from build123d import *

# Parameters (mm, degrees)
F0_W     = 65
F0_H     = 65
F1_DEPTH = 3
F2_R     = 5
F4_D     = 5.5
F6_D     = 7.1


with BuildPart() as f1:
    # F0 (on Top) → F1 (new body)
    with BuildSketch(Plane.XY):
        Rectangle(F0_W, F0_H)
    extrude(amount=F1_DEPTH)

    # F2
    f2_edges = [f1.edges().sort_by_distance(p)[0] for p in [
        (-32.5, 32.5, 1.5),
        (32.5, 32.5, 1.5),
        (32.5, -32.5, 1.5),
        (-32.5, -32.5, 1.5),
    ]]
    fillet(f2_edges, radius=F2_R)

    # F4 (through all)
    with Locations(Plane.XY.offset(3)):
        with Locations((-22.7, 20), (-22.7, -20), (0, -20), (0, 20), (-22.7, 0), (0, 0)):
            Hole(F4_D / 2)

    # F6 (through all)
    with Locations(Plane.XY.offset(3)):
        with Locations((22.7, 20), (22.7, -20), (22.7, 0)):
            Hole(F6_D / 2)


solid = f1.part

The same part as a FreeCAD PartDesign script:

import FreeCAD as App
import Part
import Sketcher


def edges_at(feature, points):
    """Names of the edges that pass closest to the given points."""
    edges = feature.Shape.Edges
    near = lambda p: min(range(len(edges)), key=lambda i: edges[i].distToShape(Part.Vertex(*p))[0])
    return sorted({f"Edge{near(p) + 1}" for p in points})


def add_polygon(sketch, points):
    """Adds a closed chain of lines whose ends are joined by coincident constraints."""
    first, n = sketch.GeometryCount, len(points)
    for a, b in zip(points, points[1:] + points[:1]):
        sketch.addGeometry(Part.LineSegment(App.Vector(*a, 0), App.Vector(*b, 0)), False)
    for i in range(n):
        sketch.addConstraint(Sketcher.Constraint("Coincident", first + i, 2, first + (i + 1) % n, 1))

doc = App.newDocument("Part")
body = doc.addObject("PartDesign::Body", "Body")

# Sketch on XY plane
sketch1 = body.newObject("Sketcher::SketchObject", "Sketch")
sketch1.AttachmentSupport = (doc.getObject("XY_Plane"), [""])
sketch1.MapMode = "FlatFace"
add_polygon(sketch1, [(-32, 32), (-32, -32), (32, -32), (32, 32)])  # lines 0-3
sketch1.addConstraint([
    Sketcher.Constraint("Vertical", 0),
    Sketcher.Constraint("Horizontal", 1),
    Sketcher.Constraint("Vertical", 2),
    Sketcher.Constraint("Horizontal", 3),
    Sketcher.Constraint("Symmetric", 0, 2, 2, 2, -1, 1),
    Sketcher.Constraint("Equal", 3, 0),
    Sketcher.Constraint("DistanceX", 1, 1, 1, 2, 65.0),
])
pad1 = body.newObject("PartDesign::Pad", "Pad")
pad1.Profile = sketch1
pad1.Length = 3
doc.recompute()

fillet = body.newObject("PartDesign::Fillet", "Fillet")
fillet.Base = (pad1, edges_at(pad1, [
    (-32.5, 32.5, 1.5),
    (32.5, 32.5, 1.5),
    (32.5, -32.5, 1.5),
    (-32.5, -32.5, 1.5),
]))
fillet.Radius = 5

# Sketch on XY plane
sketch2 = body.newObject("Sketcher::SketchObject", "Sketch001")
sketch2.AttachmentSupport = (doc.getObject("XY_Plane"), [""])
sketch2.MapMode = "FlatFace"
sketch2.AttachmentOffset = App.Placement(App.Vector(0, 0, 3), App.Rotation())
sketch2.addGeometry([
    Part.Circle(App.Vector(-22.7, 20, 0), App.Vector(0, 0, 1), 2.8),  # 0
    Part.Circle(App.Vector(-22.7, -20, 0), App.Vector(0, 0, 1), 2.8),  # 1
    Part.Circle(App.Vector(0, -20, 0), App.Vector(0, 0, 1), 2.8),  # 2
    Part.Circle(App.Vector(0, 20, 0), App.Vector(0, 0, 1), 2.8),  # 3
    Part.Circle(App.Vector(-22.7, 0, 0), App.Vector(0, 0, 1), 2.8),  # 4
    Part.Circle(App.Vector(0, 0, 0), App.Vector(0, 0, 1), 2.8),  # 5
], False)
sketch2.addConstraint([
    Sketcher.Constraint("Coincident", 5, 3, -1, 1),
    Sketcher.Constraint("Equal", 0, 1),
    Sketcher.Constraint("Equal", 1, 2),
    Sketcher.Constraint("Equal", 2, 3),
    Sketcher.Constraint("Equal", 3, 4),
    Sketcher.Constraint("Equal", 4, 5),
    Sketcher.Constraint("Symmetric", 2, 3, 3, 3, -1, 1),
    Sketcher.Constraint("Symmetric", 0, 3, 1, 3, -1),
    Sketcher.Constraint("PointOnObject", 2, 3, -2),
    Sketcher.Constraint("PointOnObject", 4, 3, -1),
    Sketcher.Constraint("Horizontal", 1, 3, 2, 3),
    Sketcher.Constraint("Vertical", 1, 3, 4, 3),
    Sketcher.Constraint("Diameter", 0, 5.5),
    Sketcher.Constraint("DistanceY", -1, 1, 0, 3, 20.0),
    Sketcher.Constraint("DistanceX", 0, 3, -1, 1, 22.7),
])
doc.recompute()
hole = body.newObject("PartDesign::Hole", "Hole")
hole.Profile = sketch2
hole.ThreadType = "None"
hole.Diameter = 5.5
hole.DepthType = "ThroughAll"

# Sketch on XY plane
sketch3 = body.newObject("Sketcher::SketchObject", "Sketch002")
sketch3.AttachmentSupport = (doc.getObject("XY_Plane"), [""])
sketch3.MapMode = "FlatFace"
sketch3.AttachmentOffset = App.Placement(App.Vector(0, 0, 3), App.Rotation())
sketch3.addGeometry([
    Part.Circle(App.Vector(22.7, 20, 0), App.Vector(0, 0, 1), 3.5),
    Part.Circle(App.Vector(22.7, -20, 0), App.Vector(0, 0, 1), 3.5),
    Part.Circle(App.Vector(22.7, 0, 0), App.Vector(0, 0, 1), 3.5),
], False)
sketch3.addConstraint([
    Sketcher.Constraint("Equal", 0, 1),
    Sketcher.Constraint("Equal", 1, 2),
    Sketcher.Constraint("Symmetric", 0, 3, 1, 3, -1),
    Sketcher.Constraint("PointOnObject", 2, 3, -1),
    Sketcher.Constraint("Vertical", 1, 3, 2, 3),
    Sketcher.Constraint("Diameter", 0, 7.1),
    Sketcher.Constraint("DistanceY", -1, 1, 0, 3, 20.0),
    Sketcher.Constraint("DistanceX", -1, 1, 0, 3, 22.7),
])
doc.recompute()
hole2 = body.newObject("PartDesign::Hole", "Hole001")
hole2.Profile = sketch3
hole2.ThreadType = "None"
hole2.Diameter = 7.1
hole2.DepthType = "ThroughAll"

doc.recompute()
